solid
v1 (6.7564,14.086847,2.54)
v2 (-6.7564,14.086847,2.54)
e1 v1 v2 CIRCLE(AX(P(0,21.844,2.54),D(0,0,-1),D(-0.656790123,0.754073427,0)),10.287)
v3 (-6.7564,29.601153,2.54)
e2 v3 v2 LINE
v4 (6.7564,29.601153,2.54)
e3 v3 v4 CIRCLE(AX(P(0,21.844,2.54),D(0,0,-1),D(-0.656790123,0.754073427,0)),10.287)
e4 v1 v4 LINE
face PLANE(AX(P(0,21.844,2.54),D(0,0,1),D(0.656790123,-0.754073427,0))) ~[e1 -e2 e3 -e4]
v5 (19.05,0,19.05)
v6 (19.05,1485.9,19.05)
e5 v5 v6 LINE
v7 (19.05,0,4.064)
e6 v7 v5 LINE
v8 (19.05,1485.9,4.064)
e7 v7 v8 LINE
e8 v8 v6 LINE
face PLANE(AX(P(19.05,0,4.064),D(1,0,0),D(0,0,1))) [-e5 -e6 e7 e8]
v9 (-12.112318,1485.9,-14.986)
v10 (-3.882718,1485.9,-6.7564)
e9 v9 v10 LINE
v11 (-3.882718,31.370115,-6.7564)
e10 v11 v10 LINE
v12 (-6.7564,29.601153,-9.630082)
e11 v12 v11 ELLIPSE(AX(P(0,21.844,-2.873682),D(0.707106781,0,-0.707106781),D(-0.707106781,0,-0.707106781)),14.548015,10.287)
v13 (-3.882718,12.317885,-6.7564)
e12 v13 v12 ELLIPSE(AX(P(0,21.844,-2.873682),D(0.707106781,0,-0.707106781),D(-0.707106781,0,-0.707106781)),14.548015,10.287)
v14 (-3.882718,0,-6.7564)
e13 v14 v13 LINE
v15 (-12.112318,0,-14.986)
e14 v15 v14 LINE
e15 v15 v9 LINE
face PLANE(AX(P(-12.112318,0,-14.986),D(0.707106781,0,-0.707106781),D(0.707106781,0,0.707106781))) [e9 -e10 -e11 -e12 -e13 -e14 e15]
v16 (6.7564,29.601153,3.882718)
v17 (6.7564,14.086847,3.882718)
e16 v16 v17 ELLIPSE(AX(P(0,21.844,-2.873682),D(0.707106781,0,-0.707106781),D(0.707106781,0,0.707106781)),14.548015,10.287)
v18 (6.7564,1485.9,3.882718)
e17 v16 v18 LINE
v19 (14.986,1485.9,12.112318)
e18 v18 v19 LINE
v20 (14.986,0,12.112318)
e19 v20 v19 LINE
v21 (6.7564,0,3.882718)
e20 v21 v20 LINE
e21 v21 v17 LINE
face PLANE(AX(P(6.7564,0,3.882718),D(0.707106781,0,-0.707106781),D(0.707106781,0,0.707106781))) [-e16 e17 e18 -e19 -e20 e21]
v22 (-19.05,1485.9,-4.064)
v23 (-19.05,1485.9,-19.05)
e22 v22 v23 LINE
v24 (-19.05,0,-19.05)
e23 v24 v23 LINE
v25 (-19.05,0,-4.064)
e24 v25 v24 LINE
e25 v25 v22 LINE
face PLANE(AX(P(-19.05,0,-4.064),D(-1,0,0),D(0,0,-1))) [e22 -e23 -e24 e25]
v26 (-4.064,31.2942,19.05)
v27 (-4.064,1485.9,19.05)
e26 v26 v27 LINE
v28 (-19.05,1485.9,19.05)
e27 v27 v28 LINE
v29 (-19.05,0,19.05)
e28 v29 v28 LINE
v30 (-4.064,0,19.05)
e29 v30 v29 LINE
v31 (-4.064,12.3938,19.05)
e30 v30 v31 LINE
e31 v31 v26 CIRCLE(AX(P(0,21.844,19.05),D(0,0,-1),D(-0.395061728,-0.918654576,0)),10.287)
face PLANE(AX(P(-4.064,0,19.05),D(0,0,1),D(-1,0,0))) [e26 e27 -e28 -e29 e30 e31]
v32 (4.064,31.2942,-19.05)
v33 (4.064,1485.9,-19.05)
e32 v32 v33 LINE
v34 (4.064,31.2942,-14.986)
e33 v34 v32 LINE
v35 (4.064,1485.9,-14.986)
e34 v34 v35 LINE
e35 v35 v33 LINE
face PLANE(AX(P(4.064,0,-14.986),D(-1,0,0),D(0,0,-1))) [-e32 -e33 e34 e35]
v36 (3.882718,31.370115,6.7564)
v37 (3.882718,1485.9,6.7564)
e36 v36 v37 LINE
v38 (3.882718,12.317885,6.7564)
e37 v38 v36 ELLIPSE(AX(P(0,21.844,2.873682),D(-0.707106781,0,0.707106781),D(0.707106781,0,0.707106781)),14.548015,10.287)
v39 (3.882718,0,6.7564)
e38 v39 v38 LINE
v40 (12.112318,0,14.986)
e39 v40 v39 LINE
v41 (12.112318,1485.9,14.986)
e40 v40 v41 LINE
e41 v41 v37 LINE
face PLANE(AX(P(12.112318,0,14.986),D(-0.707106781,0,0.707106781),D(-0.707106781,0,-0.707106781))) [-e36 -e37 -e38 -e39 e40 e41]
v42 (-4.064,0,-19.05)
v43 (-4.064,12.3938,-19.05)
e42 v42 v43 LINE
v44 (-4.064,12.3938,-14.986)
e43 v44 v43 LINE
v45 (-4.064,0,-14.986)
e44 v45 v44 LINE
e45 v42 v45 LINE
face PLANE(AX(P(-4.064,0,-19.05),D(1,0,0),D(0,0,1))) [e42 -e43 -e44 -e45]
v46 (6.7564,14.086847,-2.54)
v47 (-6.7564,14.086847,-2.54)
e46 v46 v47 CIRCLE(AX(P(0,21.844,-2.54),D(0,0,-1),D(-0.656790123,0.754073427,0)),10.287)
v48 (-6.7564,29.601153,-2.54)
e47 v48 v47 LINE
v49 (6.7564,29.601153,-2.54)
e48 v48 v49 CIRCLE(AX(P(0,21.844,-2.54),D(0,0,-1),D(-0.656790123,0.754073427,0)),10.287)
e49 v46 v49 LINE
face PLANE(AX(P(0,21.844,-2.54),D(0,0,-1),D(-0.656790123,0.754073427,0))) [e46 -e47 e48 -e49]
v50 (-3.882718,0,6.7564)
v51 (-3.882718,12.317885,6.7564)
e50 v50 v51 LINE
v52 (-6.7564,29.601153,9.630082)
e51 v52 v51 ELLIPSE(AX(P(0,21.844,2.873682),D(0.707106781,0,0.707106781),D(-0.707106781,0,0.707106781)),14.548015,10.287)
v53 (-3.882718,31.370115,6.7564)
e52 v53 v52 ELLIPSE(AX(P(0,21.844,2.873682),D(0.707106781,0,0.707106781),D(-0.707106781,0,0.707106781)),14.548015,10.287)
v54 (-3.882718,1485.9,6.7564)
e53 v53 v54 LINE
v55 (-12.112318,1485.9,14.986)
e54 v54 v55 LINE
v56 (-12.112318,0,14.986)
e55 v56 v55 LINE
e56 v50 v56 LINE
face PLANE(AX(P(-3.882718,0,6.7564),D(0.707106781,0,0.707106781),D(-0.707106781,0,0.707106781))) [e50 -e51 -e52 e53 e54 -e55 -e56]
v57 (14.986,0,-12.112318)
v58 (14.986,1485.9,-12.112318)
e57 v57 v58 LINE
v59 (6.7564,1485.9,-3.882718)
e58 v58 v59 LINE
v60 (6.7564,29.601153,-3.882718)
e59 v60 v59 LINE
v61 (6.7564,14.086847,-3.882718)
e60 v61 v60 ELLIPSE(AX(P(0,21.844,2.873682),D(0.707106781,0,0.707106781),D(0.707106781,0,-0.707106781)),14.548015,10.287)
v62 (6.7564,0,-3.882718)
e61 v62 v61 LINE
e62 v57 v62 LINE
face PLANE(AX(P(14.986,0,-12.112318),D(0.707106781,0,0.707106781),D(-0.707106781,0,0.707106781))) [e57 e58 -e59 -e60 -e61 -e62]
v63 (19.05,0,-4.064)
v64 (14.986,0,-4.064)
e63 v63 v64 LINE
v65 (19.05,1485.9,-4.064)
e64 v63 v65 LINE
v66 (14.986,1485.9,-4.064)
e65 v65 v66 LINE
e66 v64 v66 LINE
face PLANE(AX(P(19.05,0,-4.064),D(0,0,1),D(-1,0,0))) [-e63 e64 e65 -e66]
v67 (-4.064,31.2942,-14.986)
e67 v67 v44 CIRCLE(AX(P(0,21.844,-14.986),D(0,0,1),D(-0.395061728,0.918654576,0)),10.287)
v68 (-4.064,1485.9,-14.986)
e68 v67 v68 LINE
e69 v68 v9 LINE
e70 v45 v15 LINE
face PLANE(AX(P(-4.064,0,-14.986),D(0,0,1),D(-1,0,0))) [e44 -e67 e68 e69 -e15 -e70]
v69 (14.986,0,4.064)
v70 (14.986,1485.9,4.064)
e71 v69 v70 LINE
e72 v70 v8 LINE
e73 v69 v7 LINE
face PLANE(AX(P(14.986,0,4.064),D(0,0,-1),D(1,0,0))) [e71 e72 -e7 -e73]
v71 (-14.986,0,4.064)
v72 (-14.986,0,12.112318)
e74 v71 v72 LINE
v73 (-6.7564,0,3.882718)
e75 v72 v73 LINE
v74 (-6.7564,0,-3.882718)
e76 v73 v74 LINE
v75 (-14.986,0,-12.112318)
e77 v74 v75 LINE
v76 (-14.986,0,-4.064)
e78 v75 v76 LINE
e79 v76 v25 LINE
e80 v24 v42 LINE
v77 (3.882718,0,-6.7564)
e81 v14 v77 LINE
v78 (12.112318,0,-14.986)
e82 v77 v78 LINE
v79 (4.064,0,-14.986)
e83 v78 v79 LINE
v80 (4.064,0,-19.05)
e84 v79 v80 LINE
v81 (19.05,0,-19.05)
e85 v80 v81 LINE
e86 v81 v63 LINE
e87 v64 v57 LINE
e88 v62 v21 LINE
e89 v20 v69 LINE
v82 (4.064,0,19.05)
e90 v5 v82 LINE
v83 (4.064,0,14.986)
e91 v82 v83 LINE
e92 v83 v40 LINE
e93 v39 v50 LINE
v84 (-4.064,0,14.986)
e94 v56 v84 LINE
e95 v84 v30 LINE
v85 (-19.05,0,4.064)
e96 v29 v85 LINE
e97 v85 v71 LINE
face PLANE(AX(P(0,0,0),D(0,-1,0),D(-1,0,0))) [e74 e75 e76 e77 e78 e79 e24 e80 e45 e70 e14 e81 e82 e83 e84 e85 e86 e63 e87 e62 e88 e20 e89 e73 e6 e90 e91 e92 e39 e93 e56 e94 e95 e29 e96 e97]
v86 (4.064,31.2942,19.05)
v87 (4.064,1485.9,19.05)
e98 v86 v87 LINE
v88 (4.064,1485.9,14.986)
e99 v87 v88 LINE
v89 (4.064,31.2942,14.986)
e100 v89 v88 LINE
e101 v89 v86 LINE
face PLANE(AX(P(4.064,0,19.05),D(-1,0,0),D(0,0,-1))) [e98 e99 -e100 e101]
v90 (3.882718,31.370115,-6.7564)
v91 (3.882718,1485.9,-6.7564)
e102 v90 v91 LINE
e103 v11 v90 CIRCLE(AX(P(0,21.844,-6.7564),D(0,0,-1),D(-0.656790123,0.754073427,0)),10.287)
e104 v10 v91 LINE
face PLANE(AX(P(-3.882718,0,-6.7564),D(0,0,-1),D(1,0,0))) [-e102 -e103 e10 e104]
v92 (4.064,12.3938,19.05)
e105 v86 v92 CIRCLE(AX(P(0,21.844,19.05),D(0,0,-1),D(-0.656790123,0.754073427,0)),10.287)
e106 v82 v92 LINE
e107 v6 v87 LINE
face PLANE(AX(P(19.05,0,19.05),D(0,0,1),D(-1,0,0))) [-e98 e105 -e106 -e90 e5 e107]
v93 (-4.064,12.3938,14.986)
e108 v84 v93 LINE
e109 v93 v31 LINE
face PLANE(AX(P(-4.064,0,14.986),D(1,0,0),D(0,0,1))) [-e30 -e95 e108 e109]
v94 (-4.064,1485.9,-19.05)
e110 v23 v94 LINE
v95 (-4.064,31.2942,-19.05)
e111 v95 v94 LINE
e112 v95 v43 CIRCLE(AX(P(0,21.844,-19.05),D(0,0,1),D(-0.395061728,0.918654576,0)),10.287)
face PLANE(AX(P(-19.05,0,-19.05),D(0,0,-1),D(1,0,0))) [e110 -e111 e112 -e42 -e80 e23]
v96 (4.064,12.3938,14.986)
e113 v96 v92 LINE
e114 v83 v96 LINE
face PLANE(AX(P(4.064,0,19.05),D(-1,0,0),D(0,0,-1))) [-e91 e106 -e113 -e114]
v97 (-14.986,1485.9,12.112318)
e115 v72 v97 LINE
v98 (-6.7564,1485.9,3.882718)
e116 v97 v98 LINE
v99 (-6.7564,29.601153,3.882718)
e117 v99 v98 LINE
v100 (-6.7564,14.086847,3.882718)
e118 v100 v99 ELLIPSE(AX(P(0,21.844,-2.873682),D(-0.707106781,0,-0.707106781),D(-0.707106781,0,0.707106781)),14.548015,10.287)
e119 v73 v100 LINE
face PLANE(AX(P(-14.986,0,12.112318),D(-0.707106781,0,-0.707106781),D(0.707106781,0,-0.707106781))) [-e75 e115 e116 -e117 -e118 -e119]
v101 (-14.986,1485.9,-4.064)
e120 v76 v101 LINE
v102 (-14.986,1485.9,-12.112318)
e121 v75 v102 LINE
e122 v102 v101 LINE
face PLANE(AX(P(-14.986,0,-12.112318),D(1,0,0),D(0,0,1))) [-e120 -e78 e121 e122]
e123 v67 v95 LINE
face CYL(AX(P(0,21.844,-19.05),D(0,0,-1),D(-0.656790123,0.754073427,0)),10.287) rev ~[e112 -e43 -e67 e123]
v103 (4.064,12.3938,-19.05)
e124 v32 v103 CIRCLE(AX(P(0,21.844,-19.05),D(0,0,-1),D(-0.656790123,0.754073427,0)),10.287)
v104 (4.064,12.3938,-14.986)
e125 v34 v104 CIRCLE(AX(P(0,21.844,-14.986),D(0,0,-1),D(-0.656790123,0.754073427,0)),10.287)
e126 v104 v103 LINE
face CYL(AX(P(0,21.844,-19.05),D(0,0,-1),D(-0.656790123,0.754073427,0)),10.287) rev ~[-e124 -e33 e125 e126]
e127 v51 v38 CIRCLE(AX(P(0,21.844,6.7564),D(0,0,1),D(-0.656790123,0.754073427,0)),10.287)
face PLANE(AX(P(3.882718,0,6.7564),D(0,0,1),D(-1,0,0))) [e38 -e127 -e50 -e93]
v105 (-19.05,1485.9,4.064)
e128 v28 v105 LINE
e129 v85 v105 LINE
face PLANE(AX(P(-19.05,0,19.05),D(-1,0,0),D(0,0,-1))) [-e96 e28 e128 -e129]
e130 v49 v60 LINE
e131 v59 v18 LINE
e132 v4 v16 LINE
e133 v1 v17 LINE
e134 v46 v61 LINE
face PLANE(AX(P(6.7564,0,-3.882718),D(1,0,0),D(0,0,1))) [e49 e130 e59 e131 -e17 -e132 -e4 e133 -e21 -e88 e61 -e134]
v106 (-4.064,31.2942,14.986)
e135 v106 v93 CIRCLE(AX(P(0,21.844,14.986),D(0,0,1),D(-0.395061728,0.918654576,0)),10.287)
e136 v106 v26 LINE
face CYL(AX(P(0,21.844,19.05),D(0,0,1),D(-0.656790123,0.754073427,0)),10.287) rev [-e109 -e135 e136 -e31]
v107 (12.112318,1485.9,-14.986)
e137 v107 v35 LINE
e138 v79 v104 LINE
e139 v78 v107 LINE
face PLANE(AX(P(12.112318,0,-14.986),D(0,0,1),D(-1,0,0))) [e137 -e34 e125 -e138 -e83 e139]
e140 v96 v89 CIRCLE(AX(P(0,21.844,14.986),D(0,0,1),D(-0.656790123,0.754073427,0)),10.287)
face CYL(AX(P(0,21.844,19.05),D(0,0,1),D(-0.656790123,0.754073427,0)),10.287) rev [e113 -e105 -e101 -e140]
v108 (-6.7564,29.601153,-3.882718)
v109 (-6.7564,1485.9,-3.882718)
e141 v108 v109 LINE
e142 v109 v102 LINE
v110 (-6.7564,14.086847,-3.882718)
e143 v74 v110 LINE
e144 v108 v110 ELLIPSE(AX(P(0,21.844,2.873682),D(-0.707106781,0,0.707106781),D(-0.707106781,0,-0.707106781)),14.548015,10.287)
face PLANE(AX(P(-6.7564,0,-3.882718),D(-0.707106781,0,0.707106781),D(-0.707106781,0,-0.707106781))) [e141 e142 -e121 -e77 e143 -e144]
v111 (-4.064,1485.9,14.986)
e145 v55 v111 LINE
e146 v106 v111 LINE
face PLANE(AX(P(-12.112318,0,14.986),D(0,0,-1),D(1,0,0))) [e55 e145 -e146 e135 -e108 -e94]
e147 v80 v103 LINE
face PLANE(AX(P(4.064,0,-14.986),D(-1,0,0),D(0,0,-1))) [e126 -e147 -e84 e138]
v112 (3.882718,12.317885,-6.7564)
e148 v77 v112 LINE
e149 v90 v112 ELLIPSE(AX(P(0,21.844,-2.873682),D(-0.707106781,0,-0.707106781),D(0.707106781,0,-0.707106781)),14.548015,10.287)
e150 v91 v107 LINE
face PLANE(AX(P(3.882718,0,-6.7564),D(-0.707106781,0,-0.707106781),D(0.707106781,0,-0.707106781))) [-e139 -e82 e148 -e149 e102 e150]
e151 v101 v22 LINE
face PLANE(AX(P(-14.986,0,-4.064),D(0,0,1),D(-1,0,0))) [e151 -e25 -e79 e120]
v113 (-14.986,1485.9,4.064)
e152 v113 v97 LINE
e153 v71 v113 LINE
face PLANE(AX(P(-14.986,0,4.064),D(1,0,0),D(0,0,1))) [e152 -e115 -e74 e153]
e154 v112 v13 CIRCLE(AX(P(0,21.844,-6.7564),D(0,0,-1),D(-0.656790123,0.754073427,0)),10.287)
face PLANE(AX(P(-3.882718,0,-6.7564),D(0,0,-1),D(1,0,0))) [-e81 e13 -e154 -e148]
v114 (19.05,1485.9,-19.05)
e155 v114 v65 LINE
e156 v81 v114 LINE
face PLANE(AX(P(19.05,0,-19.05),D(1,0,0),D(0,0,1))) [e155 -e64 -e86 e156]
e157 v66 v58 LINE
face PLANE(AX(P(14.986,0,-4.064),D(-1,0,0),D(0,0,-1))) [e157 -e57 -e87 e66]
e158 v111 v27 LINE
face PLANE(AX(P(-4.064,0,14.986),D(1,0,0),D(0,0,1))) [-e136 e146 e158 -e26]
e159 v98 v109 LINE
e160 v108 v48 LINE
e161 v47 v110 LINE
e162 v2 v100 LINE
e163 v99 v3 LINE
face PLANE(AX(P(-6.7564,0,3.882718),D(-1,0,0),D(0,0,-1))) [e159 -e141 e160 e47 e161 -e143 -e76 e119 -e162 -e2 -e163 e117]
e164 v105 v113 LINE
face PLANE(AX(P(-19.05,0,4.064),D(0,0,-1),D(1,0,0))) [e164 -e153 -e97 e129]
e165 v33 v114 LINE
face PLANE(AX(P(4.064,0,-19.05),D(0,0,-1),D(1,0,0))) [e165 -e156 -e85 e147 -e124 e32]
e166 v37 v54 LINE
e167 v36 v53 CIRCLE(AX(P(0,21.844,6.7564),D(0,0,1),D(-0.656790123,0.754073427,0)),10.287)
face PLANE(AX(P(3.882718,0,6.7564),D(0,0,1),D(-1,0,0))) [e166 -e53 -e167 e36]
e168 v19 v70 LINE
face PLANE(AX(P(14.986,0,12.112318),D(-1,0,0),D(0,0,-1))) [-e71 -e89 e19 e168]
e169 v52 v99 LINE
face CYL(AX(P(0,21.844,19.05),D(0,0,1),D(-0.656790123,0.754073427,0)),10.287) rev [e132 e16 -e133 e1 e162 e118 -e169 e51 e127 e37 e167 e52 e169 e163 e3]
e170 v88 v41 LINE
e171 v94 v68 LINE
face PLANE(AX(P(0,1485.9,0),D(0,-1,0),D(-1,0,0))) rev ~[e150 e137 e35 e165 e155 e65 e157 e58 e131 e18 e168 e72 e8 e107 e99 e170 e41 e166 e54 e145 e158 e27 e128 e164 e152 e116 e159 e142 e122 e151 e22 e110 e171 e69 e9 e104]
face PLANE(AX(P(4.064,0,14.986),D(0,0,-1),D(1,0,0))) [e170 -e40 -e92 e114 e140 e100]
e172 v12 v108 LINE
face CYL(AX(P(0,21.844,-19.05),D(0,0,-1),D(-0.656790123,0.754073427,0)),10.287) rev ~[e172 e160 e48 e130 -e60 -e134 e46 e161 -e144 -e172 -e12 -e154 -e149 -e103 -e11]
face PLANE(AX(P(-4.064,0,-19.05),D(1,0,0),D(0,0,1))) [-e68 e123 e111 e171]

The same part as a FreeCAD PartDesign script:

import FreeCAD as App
import Part
import Sketcher

V = App.Vector
Q = App.Units.Quantity


def add_polygon(sketch, points):
    """Adds a closed chain of lines whose ends are joined by coincident constraints."""
    first, n = sketch.GeometryCount, len(points)
    for a, b in zip(points, points[1:] + points[:1]):
        sketch.addGeometry(Part.LineSegment(App.Vector(*a, 0), App.Vector(*b, 0)), False)
    for i in range(n):
        sketch.addConstraint(Sketcher.Constraint("Coincident", first + i, 2, first + (i + 1) % n, 1))

doc = App.newDocument("Part")
body = doc.addObject("PartDesign::Body", "Body")

# Sketch on XZ plane
sketch1 = doc.addObject("Sketcher::SketchObject", "Sketch")
body.addObject(sketch1)
sketch1.AttachmentSupport = (doc.XZ_Plane, [""])
sketch1.MapMode = "FlatFace"
add_polygon(sketch1, [(-4.1, -19.1), (-19.1, -19.1), (-19.1, -4.1), (-15, -4.1), (-15, -12.1), (-6.8, -3.9), (-6.8, 3.9), (-15, 12.1), (-15, 4.1), (-19.1, 4.1), (-19.1, 19.1), (-4.1, 19.1), (-4.1, 15), (-12.1, 15), (-3.9, 6.8), (3.9, 6.8), (12.1, 15), (4.1, 15), (4.1, 19.1), (19.1, 19.1), (19.1, 4.1), (15, 4.1), (15, 12.1), (6.8, 3.9), (6.8, -3.9), (15, -12.1), (15, -4.1), (19.1, -4.1), (19.1, -19.1), (4.1, -19.1), (4.1, -15), (12.1, -15), (3.9, -6.8), (-3.9, -6.8), (-12.1, -15), (-4.1, -15)])  # lines 0-35
sketch1.addConstraint(Sketcher.Constraint("Horizontal", 0))
sketch1.addConstraint(Sketcher.Constraint("Vertical", 1))
sketch1.addConstraint(Sketcher.Constraint("Horizontal", 2))
sketch1.addConstraint(Sketcher.Constraint("Vertical", 3))
sketch1.addConstraint(Sketcher.Constraint("Vertical", 5))
sketch1.addConstraint(Sketcher.Constraint("Vertical", 7))
sketch1.addConstraint(Sketcher.Constraint("Horizontal", 8))
sketch1.addConstraint(Sketcher.Constraint("Vertical", 9))
sketch1.addConstraint(Sketcher.Constraint("Horizontal", 10))
sketch1.addConstraint(Sketcher.Constraint("Vertical", 11))
sketch1.addConstraint(Sketcher.Constraint("Horizontal", 12))
sketch1.addConstraint(Sketcher.Constraint("Horizontal", 14))
sketch1.addConstraint(Sketcher.Constraint("Horizontal", 16))
sketch1.addConstraint(Sketcher.Constraint("Vertical", 17))
sketch1.addConstraint(Sketcher.Constraint("Horizontal", 18))
sketch1.addConstraint(Sketcher.Constraint("Vertical", 19))
sketch1.addConstraint(Sketcher.Constraint("Horizontal", 20))
sketch1.addConstraint(Sketcher.Constraint("Vertical", 21))
sketch1.addConstraint(Sketcher.Constraint("Vertical", 23))
sketch1.addConstraint(Sketcher.Constraint("Vertical", 25))
sketch1.addConstraint(Sketcher.Constraint("Horizontal", 26))
sketch1.addConstraint(Sketcher.Constraint("Vertical", 27))
sketch1.addConstraint(Sketcher.Constraint("Horizontal", 28))
sketch1.addConstraint(Sketcher.Constraint("Vertical", 29))
sketch1.addConstraint(Sketcher.Constraint("Horizontal", 30))
sketch1.addConstraint(Sketcher.Constraint("Horizontal", 32))
sketch1.addConstraint(Sketcher.Constraint("Horizontal", 34))
sketch1.addConstraint(Sketcher.Constraint("Vertical", 35))
sketch1.addConstraint(Sketcher.Constraint("Symmetric", 0, 2, 18, 2, -1, 1))
sketch1.addConstraint(Sketcher.Constraint("Symmetric", 2, 2, 20, 2, -1, 1))
sketch1.addConstraint(Sketcher.Constraint("Symmetric", 4, 2, 22, 2, -1, 1))
sketch1.addConstraint(Sketcher.Constraint("Symmetric", 6, 2, 24, 2, -1, 1))
sketch1.addConstraint(Sketcher.Constraint("Symmetric", 8, 2, 26, 2, -1, 1))
sketch1.addConstraint(Sketcher.Constraint("Symmetric", 10, 2, 28, 2, -1, 1))
sketch1.addConstraint(Sketcher.Constraint("Symmetric", 12, 2, 30, 2, -1, 1))
sketch1.addConstraint(Sketcher.Constraint("Symmetric", 13, 2, 31, 2, -1, 1))
sketch1.addConstraint(Sketcher.Constraint("Symmetric", 15, 2, 33, 2, -1, 1))
sketch1.addConstraint(Sketcher.Constraint("Symmetric", 12, 2, 15, 2, -2))
sketch1.addConstraint(Sketcher.Constraint("Symmetric", 10, 2, 17, 2, -2))
sketch1.addConstraint(Sketcher.Constraint("Symmetric", 8, 2, 19, 2, -2))
sketch1.addConstraint(Sketcher.Constraint("Symmetric", 6, 2, 21, 2, -2))
sketch1.addConstraint(Sketcher.Constraint("Perpendicular", 4, 6))
sketch1.addConstraint(Sketcher.Constraint("Parallel", 6, 13))
sketch1.addConstraint(Sketcher.Constraint("Perpendicular", 13, 15))
sketch1.addConstraint(Sketcher.Constraint("Parallel", 15, 22))
sketch1.addConstraint(Sketcher.Constraint("Perpendicular", 22, 24))
sketch1.addConstraint(Sketcher.Constraint("Perpendicular", 31, 33))
sketch1.addConstraint(Sketcher.Constraint("Horizontal", 5, 2, 22, 2))
sketch1.addConstraint(Sketcher.Constraint("Vertical", 11, 2, 34, 2))
sketch1.addConstraint(Sketcher.Constraint("Equal", 28, 1))
sketch1.addConstraint(Sketcher.Constraint("Equal", 34, 3))
sketch1.addConstraint(Sketcher.Constraint("Equal", 32, 5))
sketch1.addConstraint(Sketcher.Constraint("Equal", 26, 11))
sketch1.addConstraint(Sketcher.Constraint("Equal", 6, 13))
sketch1.addConstraint(Sketcher.Constraint("DistanceX", 0, 2, 0, 1, Q("0.59 in")))
sketch1.addConstraint(Sketcher.Constraint("DistanceX", 2, 1, 2, 2, Q("0.16 in")))
sketch1.addConstraint(Sketcher.Constraint("DistanceX", 0, 2, -1, 1, Q("0.75 in")))
sketch1.addConstraint(Sketcher.Constraint("DistanceX", 4, 2, -1, 1, Q("0.266 in")))
sketch1.addConstraint(Sketcher.Constraint("DistanceX", 12, 2, 12, 1, 8.048318))
pad1 = doc.addObject("PartDesign::Pad", "Pad")
body.addObject(pad1)
pad1.Profile = sketch1
pad1.Length = Q("58.5 in")
pad1.Reversed = True

# Sketch on XY plane
sketch2 = doc.addObject("Sketcher::SketchObject", "Sketch001")
body.addObject(sketch2)
sketch2.AttachmentSupport = (doc.XY_Plane, [""])
sketch2.MapMode = "FlatFace"
sketch2.AttachmentOffset = App.Placement(V(0, 0, -0.75 * 25.4), App.Rotation())
sketch2.addGeometry(Part.Circle(V(0, 22, 0), V(0, 0, 1), 10), False)
sketch2.addConstraint(Sketcher.Constraint("PointOnObject", 0, 3, -2))
sketch2.addConstraint(Sketcher.Constraint("Diameter", 0, Q("0.81 in")))
sketch2.addConstraint(Sketcher.Constraint("DistanceY", -1, 1, 0, 3, Q("0.86 in")))
pocket1 = doc.addObject("PartDesign::Pocket", "Pocket")
body.addObject(pocket1)
pocket1.Profile = sketch2
pocket1.Length = Q("0.65 in")
pocket1.Reversed = True
doc.recompute()

mirrored = doc.addObject("PartDesign::Mirrored", "Mirrored")
body.addObject(mirrored)
mirrored.Originals = [pocket1]
mirrored.MirrorPlane = (doc.XY_Plane, [""])
body.Tip = mirrored

doc.recompute()
